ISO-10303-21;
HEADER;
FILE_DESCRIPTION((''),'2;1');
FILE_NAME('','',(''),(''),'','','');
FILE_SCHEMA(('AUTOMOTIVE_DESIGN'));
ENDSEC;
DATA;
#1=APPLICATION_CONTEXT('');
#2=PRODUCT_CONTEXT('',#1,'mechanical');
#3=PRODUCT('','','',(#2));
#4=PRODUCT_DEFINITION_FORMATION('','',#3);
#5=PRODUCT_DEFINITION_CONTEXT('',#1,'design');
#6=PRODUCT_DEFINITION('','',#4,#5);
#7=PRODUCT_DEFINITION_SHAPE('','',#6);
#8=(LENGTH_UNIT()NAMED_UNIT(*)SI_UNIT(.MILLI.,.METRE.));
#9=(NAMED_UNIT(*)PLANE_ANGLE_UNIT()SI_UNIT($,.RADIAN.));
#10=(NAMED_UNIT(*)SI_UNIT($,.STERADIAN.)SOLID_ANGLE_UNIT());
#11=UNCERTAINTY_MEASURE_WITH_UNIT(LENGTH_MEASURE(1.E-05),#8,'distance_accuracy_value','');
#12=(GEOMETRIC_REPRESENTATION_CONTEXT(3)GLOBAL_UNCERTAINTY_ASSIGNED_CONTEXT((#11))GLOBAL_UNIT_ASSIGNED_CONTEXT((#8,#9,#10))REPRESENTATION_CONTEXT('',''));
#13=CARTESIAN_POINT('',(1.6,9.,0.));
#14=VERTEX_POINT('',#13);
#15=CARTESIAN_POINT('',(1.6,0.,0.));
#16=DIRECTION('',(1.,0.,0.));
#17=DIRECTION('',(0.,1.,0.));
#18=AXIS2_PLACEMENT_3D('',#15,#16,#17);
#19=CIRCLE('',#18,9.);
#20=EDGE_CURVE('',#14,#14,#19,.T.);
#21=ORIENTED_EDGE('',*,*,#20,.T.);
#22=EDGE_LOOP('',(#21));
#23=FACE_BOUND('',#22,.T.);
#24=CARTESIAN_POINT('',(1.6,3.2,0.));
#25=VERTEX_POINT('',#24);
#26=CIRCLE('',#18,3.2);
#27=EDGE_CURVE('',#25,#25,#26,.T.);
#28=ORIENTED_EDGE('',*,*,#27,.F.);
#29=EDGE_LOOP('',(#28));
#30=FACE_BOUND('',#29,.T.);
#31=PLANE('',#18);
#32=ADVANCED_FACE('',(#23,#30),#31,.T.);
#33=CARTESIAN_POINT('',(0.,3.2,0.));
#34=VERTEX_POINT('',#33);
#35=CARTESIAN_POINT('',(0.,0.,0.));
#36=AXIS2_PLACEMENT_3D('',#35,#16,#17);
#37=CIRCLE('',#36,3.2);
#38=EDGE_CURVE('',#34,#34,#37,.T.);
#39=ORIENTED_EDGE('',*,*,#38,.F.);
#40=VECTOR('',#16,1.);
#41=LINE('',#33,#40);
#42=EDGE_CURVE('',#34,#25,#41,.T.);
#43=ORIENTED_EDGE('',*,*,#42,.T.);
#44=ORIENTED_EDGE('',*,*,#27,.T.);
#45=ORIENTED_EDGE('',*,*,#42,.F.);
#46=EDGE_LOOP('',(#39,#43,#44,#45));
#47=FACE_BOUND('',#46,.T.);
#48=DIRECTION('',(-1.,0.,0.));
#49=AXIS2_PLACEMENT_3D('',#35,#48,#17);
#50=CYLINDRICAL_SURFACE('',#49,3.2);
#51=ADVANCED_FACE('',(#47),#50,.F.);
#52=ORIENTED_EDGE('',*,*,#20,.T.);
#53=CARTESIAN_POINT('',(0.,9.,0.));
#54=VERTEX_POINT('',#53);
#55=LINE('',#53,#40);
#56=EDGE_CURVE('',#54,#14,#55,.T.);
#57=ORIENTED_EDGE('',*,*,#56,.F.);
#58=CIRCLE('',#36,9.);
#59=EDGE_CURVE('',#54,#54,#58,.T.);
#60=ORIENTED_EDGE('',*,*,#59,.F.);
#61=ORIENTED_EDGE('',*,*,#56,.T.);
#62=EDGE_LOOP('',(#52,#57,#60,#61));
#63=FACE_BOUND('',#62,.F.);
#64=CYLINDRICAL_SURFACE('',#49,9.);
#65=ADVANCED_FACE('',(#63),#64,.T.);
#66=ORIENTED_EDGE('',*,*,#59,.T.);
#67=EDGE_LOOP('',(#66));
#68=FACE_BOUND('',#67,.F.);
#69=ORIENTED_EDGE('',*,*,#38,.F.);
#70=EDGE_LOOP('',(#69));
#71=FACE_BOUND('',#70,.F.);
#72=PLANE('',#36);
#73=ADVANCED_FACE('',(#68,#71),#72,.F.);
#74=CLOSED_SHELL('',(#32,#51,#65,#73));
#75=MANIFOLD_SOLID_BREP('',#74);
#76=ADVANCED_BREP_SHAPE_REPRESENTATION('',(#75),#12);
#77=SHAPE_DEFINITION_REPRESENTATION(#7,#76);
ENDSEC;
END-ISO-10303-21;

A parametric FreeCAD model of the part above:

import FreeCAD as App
import Part
import Sketcher

V = App.Vector

doc = App.newDocument("Part")
body = doc.addObject("PartDesign::Body", "Body")

sketch1 = doc.addObject("Sketcher::SketchObject", "Sketch")
body.addObject(sketch1)
sketch1.AttachmentSupport = (doc.YZ_Plane, [""])
sketch1.MapMode = "FlatFace"
sketch1.addGeometry(Part.Circle(V(0, 0, 0), V(0, 0, 1), 9), False)
sketch1.addGeometry(Part.Circle(V(0, 0, 0), V(0, 0, 1), 3.2), False)
sketch1.addConstraint(Sketcher.Constraint("Coincident", 0, 3, -1, 1))
sketch1.addConstraint(Sketcher.Constraint("Coincident", 1, 3, -1, 1))
sketch1.addConstraint(Sketcher.Constraint("Diameter", 0, 18.0))
sketch1.addConstraint(Sketcher.Constraint("Diameter", 1, 6.4))
pad1 = doc.addObject("PartDesign::Pad", "Pad")
body.addObject(pad1)
pad1.Profile = sketch1
pad1.Length = 1.6

doc.recompute()
